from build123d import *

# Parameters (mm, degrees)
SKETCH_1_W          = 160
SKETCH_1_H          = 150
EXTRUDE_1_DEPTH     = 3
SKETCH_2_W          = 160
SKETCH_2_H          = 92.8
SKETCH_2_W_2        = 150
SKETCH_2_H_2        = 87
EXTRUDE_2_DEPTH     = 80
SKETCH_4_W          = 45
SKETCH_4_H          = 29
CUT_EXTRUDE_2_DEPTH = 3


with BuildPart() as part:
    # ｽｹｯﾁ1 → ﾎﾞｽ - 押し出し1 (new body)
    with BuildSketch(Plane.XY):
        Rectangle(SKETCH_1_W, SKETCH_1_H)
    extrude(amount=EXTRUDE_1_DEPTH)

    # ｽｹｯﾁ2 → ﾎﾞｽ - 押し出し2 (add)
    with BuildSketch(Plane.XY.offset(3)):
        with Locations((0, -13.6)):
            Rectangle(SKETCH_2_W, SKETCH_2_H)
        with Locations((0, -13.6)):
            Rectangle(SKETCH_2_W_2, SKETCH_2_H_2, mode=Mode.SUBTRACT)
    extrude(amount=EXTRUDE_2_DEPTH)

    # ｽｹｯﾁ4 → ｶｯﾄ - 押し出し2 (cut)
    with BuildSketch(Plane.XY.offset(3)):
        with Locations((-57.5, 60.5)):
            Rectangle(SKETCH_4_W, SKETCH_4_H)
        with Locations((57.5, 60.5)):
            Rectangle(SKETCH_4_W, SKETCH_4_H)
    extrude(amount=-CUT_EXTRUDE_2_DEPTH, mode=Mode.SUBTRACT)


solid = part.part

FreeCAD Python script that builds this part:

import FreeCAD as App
import Part
import Sketcher
from FreeCAD import Vector

doc = App.newDocument("Part")
body = doc.addObject("PartDesign::Body", "Body")

# Sketch on XY plane
sketch1 = doc.addObject("Sketcher::SketchObject", "Sketch")
body.addObject(sketch1)
sketch1.AttachmentSupport = (doc.XY_Plane, [""])
sketch1.MapMode = "FlatFace"
sketch1.addGeometry([
    Part.LineSegment(Vector(-80, 75, 0), Vector(-80, -75, 0)),
    Part.LineSegment(Vector(-80, -75, 0), Vector(80, -75, 0)),
    Part.LineSegment(Vector(80, -75, 0), Vector(80, 75, 0)),
    Part.LineSegment(Vector(80, 75, 0), Vector(-80, 75, 0)),
], False)
sketch1.addConstraint([
    Sketcher.Constraint("Coincident", 0, 2, 1, 1),
    Sketcher.Constraint("Coincident", 1, 2, 2, 1),
    Sketcher.Constraint("Coincident", 2, 2, 3, 1),
    Sketcher.Constraint("Coincident", 3, 2, 0, 1),
    Sketcher.Constraint("Vertical", 0),
    Sketcher.Constraint("Horizontal", 1),
    Sketcher.Constraint("Vertical", 2),
    Sketcher.Constraint("Horizontal", 3),
    Sketcher.Constraint("Symmetric", 0, 2, 2, 2, -1, 1),
    Sketcher.Constraint("DistanceX", 1, 1, 1, 2, 160.0),
    Sketcher.Constraint("DistanceY", 0, 2, 0, 1, 150.0),
])
pad1 = doc.addObject("PartDesign::Pad", "Pad")
body.addObject(pad1)
pad1.Profile = sketch1
pad1.Length = 3

# Sketch on XY plane
sketch2 = doc.addObject("Sketcher::SketchObject", "Sketch001")
body.addObject(sketch2)
sketch2.AttachmentSupport = (doc.XY_Plane, [""])
sketch2.MapMode = "FlatFace"
sketch2.AttachmentOffset = App.Placement(Vector(0, 0, 3), App.Rotation())
sketch2.addGeometry([
    Part.LineSegment(Vector(-80, 33, 0), Vector(-80, -60, 0)),  # 0
    Part.LineSegment(Vector(-80, -60, 0), Vector(80, -60, 0)),  # 1
    Part.LineSegment(Vector(80, -60, 0), Vector(80, 33, 0)),  # 2
    Part.LineSegment(Vector(80, 33, 0), Vector(-80, 33, 0)),  # 3
    Part.LineSegment(Vector(75, -57, 0), Vector(-75, -57, 0)),  # 4
    Part.LineSegment(Vector(-75, -57, 0), Vector(-75, 30, 0)),  # 5
    Part.LineSegment(Vector(-75, 30, 0), Vector(75, 30, 0)),  # 6
    Part.LineSegment(Vector(75, 30, 0), Vector(75, -57, 0)),  # 7
], False)
sketch2.addConstraint([
    Sketcher.Constraint("Coincident", 0, 2, 1, 1),
    Sketcher.Constraint("Coincident", 1, 2, 2, 1),
    Sketcher.Constraint("Coincident", 2, 2, 3, 1),
    Sketcher.Constraint("Coincident", 3, 2, 0, 1),
    Sketcher.Constraint("Coincident", 4, 2, 5, 1),
    Sketcher.Constraint("Coincident", 5, 2, 6, 1),
    Sketcher.Constraint("Coincident", 6, 2, 7, 1),
    Sketcher.Constraint("Coincident", 7, 2, 4, 1),
    Sketcher.Constraint("Vertical", 0),
    Sketcher.Constraint("Horizontal", 1),
    Sketcher.Constraint("Vertical", 2),
    Sketcher.Constraint("Horizontal", 3),
    Sketcher.Constraint("Horizontal", 4),
    Sketcher.Constraint("Vertical", 5),
    Sketcher.Constraint("Horizontal", 6),
    Sketcher.Constraint("Vertical", 7),
    Sketcher.Constraint("DistanceX", 1, 1, 1, 2, 160.0),
    Sketcher.Constraint("DistanceX", 4, 2, 4, 1, 150.0),
    Sketcher.Constraint("DistanceY", 5, 1, 5, 2, 87.0),
    Sketcher.Constraint("DistanceY", 0, 2, 0, 1, 92.8),
    Sketcher.Constraint("DistanceX", 0, 2, -1, 1, 80.0),
    Sketcher.Constraint("DistanceY", 0, 2, -1, 1, 60.0),
    Sketcher.Constraint("DistanceX", 4, 2, -1, 1, 75.0),
    Sketcher.Constraint("DistanceY", 4, 2, -1, 1, 57.1),
])
pad2 = doc.addObject("PartDesign::Pad", "Pad001")
body.addObject(pad2)
pad2.Profile = sketch2
pad2.Length = 80

# Sketch on XY plane
sketch3 = doc.addObject("Sketcher::SketchObject", "Sketch002")
body.addObject(sketch3)
sketch3.AttachmentSupport = (doc.XY_Plane, [""])
sketch3.MapMode = "FlatFace"
sketch3.AttachmentOffset = App.Placement(Vector(0, 0, 3), App.Rotation())
sketch3.addGeometry([
    Part.LineSegment(Vector(-80, 75, 0), Vector(-80, 46, 0)),  # 0
    Part.LineSegment(Vector(-80, 46, 0), Vector(-35, 46, 0)),  # 1
    Part.LineSegment(Vector(-35, 46, 0), Vector(-35, 75, 0)),  # 2
    Part.LineSegment(Vector(-35, 75, 0), Vector(-80, 75, 0)),  # 3
    Part.LineSegment(Vector(35, 75, 0), Vector(35, 46, 0)),  # 4
    Part.LineSegment(Vector(35, 46, 0), Vector(80, 46, 0)),  # 5
    Part.LineSegment(Vector(80, 46, 0), Vector(80, 75, 0)),  # 6
    Part.LineSegment(Vector(80, 75, 0), Vector(35, 75, 0)),  # 7
], False)
sketch3.addConstraint([
    Sketcher.Constraint("Coincident", 0, 2, 1, 1),
    Sketcher.Constraint("Coincident", 1, 2, 2, 1),
    Sketcher.Constraint("Coincident", 2, 2, 3, 1),
    Sketcher.Constraint("Coincident", 3, 2, 0, 1),
    Sketcher.Constraint("Coincident", 4, 2, 5, 1),
    Sketcher.Constraint("Coincident", 5, 2, 6, 1),
    Sketcher.Constraint("Coincident", 6, 2, 7, 1),
    Sketcher.Constraint("Coincident", 7, 2, 4, 1),
    Sketcher.Constraint("Vertical", 0),
    Sketcher.Constraint("Horizontal", 1),
    Sketcher.Constraint("Vertical", 2),
    Sketcher.Constraint("Horizontal", 3),
    Sketcher.Constraint("Vertical", 4),
    Sketcher.Constraint("Horizontal", 5),
    Sketcher.Constraint("Vertical", 6),
    Sketcher.Constraint("Horizontal", 7),
    Sketcher.Constraint("Symmetric", 1, 2, 4, 2, -2),
    Sketcher.Constraint("Symmetric", 3, 2, 6, 2, -2),
    Sketcher.Constraint("DistanceX", 1, 1, 1, 2, 45.0),
    Sketcher.Constraint("DistanceY", 0, 2, 0, 1, 29.0),
    Sketcher.Constraint("DistanceX", 0, 2, -1, 1, 80.0),
    Sketcher.Constraint("DistanceY", -1, 1, 0, 2, 46.0),
])
pocket1 = doc.addObject("PartDesign::Pocket", "Pocket")
body.addObject(pocket1)
pocket1.Profile = sketch3
pocket1.Length = 3

doc.recompute()
